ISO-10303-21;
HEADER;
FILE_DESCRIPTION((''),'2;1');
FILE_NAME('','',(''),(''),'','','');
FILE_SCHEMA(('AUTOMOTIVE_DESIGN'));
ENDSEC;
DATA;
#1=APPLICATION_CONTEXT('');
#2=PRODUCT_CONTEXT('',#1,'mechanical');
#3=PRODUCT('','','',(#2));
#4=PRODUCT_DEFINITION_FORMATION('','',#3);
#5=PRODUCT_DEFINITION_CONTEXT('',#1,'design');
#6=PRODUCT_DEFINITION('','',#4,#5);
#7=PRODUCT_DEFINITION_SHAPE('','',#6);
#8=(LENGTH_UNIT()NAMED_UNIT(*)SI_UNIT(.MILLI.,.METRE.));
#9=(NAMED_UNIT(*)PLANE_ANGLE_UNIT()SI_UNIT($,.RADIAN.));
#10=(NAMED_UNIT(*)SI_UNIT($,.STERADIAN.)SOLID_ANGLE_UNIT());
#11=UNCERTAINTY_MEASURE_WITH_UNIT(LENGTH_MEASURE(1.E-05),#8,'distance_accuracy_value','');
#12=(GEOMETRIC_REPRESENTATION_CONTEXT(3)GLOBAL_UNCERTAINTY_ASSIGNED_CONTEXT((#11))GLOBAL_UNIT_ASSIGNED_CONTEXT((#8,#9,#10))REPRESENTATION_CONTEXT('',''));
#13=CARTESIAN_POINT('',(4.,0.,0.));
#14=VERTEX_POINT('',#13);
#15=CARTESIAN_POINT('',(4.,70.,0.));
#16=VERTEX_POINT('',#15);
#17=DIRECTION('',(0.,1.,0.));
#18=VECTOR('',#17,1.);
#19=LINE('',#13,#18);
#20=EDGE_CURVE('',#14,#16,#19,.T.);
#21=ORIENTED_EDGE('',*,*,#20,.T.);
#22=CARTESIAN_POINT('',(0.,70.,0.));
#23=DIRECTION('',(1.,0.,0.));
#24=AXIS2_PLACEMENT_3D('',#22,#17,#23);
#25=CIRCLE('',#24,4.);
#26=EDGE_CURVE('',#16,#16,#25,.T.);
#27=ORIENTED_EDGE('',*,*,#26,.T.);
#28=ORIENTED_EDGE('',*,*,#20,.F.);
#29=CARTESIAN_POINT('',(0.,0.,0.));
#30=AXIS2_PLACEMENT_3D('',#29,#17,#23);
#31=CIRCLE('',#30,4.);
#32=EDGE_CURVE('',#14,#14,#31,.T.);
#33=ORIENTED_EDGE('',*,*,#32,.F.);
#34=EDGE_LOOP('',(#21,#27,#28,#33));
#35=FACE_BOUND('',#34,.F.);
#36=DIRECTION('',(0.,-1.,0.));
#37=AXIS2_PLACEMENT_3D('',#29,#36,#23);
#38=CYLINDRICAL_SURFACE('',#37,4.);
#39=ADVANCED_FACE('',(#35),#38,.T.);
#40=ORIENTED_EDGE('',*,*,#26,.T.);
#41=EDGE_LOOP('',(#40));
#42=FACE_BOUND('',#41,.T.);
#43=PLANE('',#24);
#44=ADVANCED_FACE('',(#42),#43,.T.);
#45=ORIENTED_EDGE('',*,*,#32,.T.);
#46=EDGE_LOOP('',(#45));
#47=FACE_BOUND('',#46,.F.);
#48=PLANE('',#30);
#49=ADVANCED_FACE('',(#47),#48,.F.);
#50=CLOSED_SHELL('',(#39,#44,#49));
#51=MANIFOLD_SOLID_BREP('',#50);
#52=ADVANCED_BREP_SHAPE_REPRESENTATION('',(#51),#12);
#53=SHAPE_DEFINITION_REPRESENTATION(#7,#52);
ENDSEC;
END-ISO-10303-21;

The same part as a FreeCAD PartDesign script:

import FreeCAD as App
import Part
import Sketcher

V = App.Vector
Q = App.Units.Quantity

doc = App.newDocument("Part")
body = doc.addObject("PartDesign::Body", "Body")

# Sketch on XZ plane
sketch1 = body.newObject("Sketcher::SketchObject", "Sketch")
sketch1.AttachmentSupport = (doc.getObject("XZ_Plane"), [""])
sketch1.MapMode = "FlatFace"
sketch1.addGeometry(Part.Circle(V(0, 0, 0), V(0, 0, 1), 4), False)
sketch1.addConstraint(Sketcher.Constraint("Coincident", 0, 3, -1, 1))
sketch1.addConstraint(Sketcher.Constraint("Diameter", 0, Q("8 mm")))
pad1 = body.newObject("PartDesign::Pad", "Pad")
pad1.Profile = sketch1
pad1.Length = 70
pad1.Reversed = True

doc.recompute()
